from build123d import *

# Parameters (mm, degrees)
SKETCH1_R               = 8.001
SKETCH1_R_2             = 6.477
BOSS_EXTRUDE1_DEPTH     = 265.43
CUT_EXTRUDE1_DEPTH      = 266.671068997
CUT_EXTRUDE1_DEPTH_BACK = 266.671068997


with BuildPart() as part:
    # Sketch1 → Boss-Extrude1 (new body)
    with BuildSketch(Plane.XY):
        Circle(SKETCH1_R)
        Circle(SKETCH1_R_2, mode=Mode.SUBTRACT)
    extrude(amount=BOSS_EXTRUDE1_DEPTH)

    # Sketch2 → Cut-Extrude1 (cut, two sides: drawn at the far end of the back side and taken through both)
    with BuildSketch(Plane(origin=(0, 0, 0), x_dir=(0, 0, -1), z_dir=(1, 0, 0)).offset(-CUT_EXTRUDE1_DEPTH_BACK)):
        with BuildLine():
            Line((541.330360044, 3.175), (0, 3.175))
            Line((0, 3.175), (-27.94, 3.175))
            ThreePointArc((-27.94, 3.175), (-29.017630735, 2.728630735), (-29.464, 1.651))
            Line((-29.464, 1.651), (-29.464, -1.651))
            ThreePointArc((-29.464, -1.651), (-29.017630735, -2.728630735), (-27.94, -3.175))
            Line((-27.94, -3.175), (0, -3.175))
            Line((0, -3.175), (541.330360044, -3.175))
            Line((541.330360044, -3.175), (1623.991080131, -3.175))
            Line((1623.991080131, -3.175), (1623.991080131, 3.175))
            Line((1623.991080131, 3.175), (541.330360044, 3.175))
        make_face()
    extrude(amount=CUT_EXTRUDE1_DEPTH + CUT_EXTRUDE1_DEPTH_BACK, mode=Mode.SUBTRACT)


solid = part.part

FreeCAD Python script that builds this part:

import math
import FreeCAD as App
import Part
import Sketcher
from FreeCAD import Vector
Q = App.Units.Quantity

doc = App.newDocument("Part")
body = doc.addObject("PartDesign::Body", "Body")

sketch1 = body.newObject("Sketcher::SketchObject", "Sketch")
sketch1.AttachmentSupport = (doc.getObject("XY_Plane"), [""])
sketch1.MapMode = "FlatFace"
sketch1.addGeometry([
    Part.Circle(Vector(0, 0, 0), Vector(0, 0, 1), 8),
    Part.Circle(Vector(0, 0, 0), Vector(0, 0, 1), 6),
], False)
sketch1.addConstraint([
    Sketcher.Constraint("Coincident", 0, 3, -1, 1),
    Sketcher.Constraint("Coincident", 1, 3, -1, 1),
    Sketcher.Constraint("Diameter", 0, Q("0.63 in")),
    Sketcher.Constraint("Diameter", 1, Q("0.51 in")),
])
pad1 = body.newObject("PartDesign::Pad", "Pad")
pad1.Profile = sketch1
pad1.Length = Q("10.45 in")

sketch2 = body.newObject("Sketcher::SketchObject", "Sketch001")
sketch2.AttachmentSupport = (doc.getObject("YZ_Plane"), [""])
sketch2.MapMode = "FlatFace"
sketch2.addGeometry([
    Part.ArcOfCircle(Part.Circle(Vector(1.7, 27.9, 0), Vector(0, 0, 1), 1.5), math.radians(0), math.radians(90)),
    Part.LineSegment(Vector(1.7, 29.5, 0), Vector(-1.7, 29.5, 0)),
    Part.ArcOfCircle(Part.Circle(Vector(-1.7, 27.9, 0), Vector(0, 0, 1), 1.5), math.radians(90), math.radians(180)),
    Part.LineSegment(Vector(-3.2, 27.9, 0), Vector(-3.2, -1624, 0)),
    Part.LineSegment(Vector(-3.2, -1624, 0), Vector(3.2, -1624, 0)),
    Part.LineSegment(Vector(3.2, -1624, 0), Vector(3.2, 27.9, 0)),
], False)
sketch2.addConstraint([
    Sketcher.Constraint("Tangent", 0, 2, 1, 1),
    Sketcher.Constraint("Tangent", 1, 2, 2, 1),
    Sketcher.Constraint("Tangent", 2, 2, 3, 1),
    Sketcher.Constraint("Coincident", 3, 2, 4, 1),
    Sketcher.Constraint("Coincident", 4, 2, 5, 1),
    Sketcher.Constraint("Tangent", 5, 2, 0, 1),
    Sketcher.Constraint("Horizontal", 1),
    Sketcher.Constraint("Vertical", 3),
    Sketcher.Constraint("Horizontal", 4),
    Sketcher.Constraint("Vertical", 5),
    Sketcher.Constraint("Equal", 0, 2),
    Sketcher.Constraint("Radius", 0, Q("0.06 in")),
    Sketcher.Constraint("DistanceX", 1, 2, 1, 1, Q("0.13 in")),
    Sketcher.Constraint("DistanceY", -1, 1, 0, 3, Q("1.1 in")),
    Sketcher.Constraint("DistanceX", -1, 1, 0, 3, Q("0.065 in")),
    Sketcher.Constraint("DistanceY", 3, 2, 3, 1, Q("1651.93108 mm")),
])
pocket1 = body.newObject("PartDesign::Pocket", "Pocket")
pocket1.Profile = sketch2
pocket1.Type = "ThroughAll"
pocket1.Midplane = True

doc.recompute()
